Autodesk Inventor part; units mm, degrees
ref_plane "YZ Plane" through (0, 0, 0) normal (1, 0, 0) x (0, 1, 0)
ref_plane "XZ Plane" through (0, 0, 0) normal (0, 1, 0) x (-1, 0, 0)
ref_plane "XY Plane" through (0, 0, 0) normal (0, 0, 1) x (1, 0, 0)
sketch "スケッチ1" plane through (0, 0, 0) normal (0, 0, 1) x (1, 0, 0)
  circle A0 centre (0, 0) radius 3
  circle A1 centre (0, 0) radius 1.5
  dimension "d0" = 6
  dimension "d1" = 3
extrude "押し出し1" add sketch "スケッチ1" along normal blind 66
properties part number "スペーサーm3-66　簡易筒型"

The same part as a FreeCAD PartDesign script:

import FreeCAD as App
import Part
import Sketcher
from FreeCAD import Vector

doc = App.newDocument("Part")
body = doc.addObject("PartDesign::Body", "Body")

# Sketch on XY plane
sketch1 = body.newObject("Sketcher::SketchObject", "Sketch")
sketch1.AttachmentSupport = (doc.getObject("XY_Plane"), [""])
sketch1.MapMode = "FlatFace"
sketch1.addGeometry([
    Part.Circle(Vector(0, 0, 0), Vector(0, 0, 1), 3),
    Part.Circle(Vector(0, 0, 0), Vector(0, 0, 1), 1.5),
], False)
sketch1.addConstraint([
    Sketcher.Constraint("Coincident", 0, 3, -1, 1),
    Sketcher.Constraint("Coincident", 1, 3, -1, 1),
    Sketcher.Constraint("Diameter", 0, 6.0),
    Sketcher.Constraint("Diameter", 1, 3.0),
])
pad1 = body.newObject("PartDesign::Pad", "Pad")
pad1.Profile = sketch1
pad1.Length = 66

doc.recompute()
